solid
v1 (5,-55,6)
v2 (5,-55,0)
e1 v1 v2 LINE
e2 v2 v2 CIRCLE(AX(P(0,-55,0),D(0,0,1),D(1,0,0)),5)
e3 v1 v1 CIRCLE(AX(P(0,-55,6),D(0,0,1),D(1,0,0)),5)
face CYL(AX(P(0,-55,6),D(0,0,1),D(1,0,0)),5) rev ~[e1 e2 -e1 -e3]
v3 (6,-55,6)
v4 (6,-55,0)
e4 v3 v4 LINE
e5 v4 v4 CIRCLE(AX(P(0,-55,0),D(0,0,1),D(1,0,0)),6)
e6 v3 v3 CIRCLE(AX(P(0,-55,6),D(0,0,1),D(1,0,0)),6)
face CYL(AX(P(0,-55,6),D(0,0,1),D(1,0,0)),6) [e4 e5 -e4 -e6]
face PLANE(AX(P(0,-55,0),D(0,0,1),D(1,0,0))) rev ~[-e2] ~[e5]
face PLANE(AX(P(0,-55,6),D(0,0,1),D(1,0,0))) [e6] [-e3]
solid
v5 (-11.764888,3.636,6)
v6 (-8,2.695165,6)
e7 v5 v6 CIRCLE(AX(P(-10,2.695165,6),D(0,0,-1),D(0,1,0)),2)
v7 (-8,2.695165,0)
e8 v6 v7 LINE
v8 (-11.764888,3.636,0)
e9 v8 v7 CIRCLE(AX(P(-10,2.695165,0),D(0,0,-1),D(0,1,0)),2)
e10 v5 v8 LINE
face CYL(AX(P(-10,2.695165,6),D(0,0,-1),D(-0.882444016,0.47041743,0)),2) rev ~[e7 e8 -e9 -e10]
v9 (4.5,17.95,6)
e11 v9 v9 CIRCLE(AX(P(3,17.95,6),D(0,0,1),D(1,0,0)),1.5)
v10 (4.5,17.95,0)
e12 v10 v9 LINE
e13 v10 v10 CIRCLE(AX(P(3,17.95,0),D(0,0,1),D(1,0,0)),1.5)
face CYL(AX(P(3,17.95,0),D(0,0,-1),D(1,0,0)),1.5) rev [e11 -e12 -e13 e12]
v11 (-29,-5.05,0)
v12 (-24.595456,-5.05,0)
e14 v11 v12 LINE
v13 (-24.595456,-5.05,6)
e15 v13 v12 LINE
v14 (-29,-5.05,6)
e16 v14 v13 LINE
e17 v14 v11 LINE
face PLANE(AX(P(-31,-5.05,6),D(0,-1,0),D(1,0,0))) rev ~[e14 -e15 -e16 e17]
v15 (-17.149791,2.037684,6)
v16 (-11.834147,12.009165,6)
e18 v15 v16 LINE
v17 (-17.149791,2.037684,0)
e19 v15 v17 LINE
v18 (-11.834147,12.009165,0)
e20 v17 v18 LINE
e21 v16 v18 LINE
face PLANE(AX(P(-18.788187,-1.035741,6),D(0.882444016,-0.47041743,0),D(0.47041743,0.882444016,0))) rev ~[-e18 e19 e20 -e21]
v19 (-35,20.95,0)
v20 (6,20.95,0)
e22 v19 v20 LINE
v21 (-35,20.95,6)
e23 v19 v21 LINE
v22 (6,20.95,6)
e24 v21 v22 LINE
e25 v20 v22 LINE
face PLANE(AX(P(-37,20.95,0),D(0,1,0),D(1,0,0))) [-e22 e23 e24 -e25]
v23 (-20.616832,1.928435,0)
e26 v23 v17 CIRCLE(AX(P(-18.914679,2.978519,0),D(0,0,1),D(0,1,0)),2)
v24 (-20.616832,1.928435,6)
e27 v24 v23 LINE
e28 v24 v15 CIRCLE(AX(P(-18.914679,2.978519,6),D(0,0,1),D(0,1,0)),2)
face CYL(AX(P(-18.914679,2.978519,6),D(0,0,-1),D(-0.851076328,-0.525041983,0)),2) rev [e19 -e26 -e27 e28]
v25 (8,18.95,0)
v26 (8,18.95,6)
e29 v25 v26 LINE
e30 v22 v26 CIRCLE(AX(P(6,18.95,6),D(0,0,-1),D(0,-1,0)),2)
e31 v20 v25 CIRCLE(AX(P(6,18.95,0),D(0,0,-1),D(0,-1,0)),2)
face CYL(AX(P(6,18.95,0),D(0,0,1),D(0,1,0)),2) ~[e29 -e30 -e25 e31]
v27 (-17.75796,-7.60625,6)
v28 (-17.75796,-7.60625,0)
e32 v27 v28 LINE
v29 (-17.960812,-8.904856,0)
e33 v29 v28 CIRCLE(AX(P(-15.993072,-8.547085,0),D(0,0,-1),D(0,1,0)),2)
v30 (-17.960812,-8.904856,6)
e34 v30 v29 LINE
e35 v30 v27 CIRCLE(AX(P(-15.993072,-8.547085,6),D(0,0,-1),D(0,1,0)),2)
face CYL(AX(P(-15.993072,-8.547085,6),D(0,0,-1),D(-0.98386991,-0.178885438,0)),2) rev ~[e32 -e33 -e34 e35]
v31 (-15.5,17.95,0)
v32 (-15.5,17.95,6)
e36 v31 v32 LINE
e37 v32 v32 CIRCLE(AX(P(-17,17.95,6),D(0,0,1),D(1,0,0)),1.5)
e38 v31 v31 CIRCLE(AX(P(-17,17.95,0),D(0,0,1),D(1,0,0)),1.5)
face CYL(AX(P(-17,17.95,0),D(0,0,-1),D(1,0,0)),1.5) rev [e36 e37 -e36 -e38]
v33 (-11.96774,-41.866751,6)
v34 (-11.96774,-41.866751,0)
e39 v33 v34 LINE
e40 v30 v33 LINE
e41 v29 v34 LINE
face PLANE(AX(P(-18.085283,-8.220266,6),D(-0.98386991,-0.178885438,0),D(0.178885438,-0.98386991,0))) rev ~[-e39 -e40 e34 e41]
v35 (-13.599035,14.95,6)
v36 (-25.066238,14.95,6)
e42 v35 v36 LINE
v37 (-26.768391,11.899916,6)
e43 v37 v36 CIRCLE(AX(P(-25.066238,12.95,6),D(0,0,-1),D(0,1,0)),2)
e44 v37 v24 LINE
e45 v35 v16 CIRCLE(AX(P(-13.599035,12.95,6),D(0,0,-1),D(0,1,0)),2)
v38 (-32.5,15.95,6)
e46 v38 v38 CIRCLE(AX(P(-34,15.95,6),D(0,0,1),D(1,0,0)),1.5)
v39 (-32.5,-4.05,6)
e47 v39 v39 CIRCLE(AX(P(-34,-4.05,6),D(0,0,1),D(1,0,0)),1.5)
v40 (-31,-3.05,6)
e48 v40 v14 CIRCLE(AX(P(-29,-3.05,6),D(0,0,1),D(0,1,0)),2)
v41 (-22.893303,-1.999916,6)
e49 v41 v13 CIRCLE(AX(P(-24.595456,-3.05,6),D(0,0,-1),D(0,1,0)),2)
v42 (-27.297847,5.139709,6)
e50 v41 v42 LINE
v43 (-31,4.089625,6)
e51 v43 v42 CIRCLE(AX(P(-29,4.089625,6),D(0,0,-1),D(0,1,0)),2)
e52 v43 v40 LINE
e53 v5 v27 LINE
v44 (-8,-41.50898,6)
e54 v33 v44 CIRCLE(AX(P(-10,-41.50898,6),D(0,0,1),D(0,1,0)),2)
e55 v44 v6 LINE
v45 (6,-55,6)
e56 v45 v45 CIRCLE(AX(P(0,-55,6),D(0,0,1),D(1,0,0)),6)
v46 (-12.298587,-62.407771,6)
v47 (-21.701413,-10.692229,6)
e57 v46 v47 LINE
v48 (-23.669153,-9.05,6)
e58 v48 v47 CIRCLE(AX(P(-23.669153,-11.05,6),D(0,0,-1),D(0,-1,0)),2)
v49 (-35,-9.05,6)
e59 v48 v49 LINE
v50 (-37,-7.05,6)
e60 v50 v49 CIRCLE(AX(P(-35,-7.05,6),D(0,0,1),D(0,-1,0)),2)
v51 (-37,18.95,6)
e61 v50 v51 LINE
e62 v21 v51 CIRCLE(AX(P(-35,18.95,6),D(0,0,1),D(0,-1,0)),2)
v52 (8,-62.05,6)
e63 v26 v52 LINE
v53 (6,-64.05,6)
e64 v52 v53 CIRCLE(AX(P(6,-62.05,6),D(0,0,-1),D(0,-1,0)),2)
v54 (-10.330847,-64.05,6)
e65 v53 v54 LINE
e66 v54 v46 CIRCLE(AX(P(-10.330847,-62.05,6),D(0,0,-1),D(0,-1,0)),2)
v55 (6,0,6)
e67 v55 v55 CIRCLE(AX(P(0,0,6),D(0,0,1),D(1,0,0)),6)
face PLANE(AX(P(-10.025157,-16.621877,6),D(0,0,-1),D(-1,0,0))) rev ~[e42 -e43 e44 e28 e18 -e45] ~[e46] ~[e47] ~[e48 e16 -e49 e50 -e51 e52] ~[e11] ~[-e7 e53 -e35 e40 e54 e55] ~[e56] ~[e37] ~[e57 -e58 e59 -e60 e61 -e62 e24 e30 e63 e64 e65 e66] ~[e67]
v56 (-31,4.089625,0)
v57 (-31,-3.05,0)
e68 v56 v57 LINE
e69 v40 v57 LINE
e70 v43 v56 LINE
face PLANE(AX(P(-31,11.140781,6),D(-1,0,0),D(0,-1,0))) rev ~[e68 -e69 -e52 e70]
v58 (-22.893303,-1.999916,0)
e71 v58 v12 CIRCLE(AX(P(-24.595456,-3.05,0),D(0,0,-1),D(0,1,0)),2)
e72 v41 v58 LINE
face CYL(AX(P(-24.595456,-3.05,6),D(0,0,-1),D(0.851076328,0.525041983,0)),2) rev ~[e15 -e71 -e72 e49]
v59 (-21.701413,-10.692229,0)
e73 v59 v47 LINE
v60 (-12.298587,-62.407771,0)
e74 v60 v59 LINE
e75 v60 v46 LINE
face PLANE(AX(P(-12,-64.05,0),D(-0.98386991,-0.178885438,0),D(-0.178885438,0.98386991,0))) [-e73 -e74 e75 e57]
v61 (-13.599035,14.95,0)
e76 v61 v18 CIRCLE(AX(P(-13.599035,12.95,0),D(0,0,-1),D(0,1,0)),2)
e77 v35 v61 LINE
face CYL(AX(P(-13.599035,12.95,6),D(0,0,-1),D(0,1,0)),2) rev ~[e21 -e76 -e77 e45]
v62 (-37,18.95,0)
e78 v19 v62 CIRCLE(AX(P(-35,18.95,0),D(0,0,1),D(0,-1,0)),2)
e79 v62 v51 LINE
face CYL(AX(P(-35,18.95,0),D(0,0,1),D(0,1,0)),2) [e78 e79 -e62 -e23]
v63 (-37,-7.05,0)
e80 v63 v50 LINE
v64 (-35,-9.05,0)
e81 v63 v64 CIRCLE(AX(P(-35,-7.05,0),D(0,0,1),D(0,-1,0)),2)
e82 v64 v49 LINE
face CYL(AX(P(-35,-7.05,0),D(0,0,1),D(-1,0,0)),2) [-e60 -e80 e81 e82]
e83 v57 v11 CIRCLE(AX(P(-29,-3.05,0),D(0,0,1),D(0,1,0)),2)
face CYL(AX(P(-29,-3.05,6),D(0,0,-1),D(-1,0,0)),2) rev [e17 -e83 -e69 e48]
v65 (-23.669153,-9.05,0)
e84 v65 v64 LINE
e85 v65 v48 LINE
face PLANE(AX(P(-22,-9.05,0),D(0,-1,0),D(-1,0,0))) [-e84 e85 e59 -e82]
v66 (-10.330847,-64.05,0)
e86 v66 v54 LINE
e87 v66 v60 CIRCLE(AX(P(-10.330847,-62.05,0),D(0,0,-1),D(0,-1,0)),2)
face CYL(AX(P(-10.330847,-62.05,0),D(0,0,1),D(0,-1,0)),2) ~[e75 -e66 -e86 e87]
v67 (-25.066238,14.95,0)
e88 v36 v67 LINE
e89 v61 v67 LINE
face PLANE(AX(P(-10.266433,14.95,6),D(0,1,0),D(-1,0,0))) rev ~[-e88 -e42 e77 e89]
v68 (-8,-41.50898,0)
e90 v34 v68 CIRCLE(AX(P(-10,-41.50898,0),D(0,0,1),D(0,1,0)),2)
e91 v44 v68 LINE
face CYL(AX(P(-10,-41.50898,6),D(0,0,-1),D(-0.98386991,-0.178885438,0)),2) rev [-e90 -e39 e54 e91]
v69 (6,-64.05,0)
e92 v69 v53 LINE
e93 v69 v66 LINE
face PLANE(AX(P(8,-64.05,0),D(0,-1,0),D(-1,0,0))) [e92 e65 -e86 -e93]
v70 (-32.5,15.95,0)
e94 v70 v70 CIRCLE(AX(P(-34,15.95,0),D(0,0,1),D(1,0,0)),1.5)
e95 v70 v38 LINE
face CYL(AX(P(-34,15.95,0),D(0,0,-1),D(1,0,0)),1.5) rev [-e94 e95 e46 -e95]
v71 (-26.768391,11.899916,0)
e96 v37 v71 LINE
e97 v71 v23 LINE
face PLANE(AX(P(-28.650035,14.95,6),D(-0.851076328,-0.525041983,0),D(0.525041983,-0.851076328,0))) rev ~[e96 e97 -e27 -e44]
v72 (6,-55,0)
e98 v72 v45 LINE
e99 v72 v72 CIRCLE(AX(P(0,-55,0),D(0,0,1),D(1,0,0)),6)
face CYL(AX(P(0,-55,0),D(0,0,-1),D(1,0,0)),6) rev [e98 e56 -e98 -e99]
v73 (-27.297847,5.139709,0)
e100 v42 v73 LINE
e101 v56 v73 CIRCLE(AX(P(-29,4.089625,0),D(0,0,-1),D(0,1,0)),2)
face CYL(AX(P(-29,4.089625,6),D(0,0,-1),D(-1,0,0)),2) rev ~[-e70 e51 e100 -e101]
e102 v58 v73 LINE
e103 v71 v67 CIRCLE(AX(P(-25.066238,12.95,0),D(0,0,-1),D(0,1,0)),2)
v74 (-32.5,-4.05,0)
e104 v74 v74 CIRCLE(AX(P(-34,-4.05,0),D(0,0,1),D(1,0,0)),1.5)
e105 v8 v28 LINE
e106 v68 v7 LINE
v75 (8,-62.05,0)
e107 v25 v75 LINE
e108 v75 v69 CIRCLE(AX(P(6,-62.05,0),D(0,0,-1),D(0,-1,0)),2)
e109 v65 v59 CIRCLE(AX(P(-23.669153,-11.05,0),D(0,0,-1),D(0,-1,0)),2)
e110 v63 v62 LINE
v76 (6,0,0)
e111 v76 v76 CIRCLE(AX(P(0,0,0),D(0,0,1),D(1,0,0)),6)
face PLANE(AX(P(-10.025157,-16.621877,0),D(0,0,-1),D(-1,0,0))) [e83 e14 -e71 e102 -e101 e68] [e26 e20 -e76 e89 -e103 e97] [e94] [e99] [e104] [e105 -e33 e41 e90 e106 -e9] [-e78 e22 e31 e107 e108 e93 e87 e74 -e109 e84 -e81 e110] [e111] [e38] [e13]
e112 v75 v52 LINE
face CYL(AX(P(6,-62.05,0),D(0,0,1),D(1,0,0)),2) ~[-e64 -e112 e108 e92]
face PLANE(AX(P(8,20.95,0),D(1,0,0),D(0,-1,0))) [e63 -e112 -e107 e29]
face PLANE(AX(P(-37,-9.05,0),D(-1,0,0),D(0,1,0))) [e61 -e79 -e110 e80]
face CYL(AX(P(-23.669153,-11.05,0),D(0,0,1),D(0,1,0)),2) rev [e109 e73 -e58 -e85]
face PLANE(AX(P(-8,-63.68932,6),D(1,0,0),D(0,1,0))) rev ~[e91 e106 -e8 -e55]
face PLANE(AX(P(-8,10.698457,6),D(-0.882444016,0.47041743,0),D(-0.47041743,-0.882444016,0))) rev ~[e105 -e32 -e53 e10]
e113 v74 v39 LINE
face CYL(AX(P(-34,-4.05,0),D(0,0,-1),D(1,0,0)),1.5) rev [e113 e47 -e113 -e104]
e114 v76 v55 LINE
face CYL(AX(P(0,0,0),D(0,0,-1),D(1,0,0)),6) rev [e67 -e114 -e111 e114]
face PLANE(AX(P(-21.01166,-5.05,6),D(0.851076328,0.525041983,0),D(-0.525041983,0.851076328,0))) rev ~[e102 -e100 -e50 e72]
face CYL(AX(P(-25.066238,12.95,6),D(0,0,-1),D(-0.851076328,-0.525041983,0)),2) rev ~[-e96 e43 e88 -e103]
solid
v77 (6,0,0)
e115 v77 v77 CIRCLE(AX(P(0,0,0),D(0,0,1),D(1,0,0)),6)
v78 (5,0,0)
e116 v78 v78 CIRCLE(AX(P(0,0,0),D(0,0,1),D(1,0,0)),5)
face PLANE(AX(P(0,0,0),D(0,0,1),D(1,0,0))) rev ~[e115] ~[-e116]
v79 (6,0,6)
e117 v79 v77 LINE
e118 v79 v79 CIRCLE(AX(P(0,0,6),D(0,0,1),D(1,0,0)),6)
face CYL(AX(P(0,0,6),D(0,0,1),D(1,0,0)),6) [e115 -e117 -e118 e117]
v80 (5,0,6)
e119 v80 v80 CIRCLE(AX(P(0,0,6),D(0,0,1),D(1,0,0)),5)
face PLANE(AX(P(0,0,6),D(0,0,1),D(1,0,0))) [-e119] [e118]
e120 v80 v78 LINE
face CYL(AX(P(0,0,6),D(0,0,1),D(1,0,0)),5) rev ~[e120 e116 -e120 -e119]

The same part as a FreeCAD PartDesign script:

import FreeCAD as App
import Part
import Sketcher


def edges_at(feature, points):
    """Names of the edges that pass closest to the given points."""
    edges = feature.Shape.Edges
    near = lambda p: min(range(len(edges)), key=lambda i: edges[i].distToShape(Part.Vertex(*p))[0])
    return sorted({f"Edge{near(p) + 1}" for p in points})


def add_polygon(sketch, points):
    """Adds a closed chain of lines whose ends are joined by coincident constraints."""
    first, n = sketch.GeometryCount, len(points)
    for a, b in zip(points, points[1:] + points[:1]):
        sketch.addGeometry(Part.LineSegment(App.Vector(*a, 0), App.Vector(*b, 0)), False)
    for i in range(n):
        sketch.addConstraint(Sketcher.Constraint("Coincident", first + i, 2, first + (i + 1) % n, 1))

doc = App.newDocument("Part")
body = doc.addObject("PartDesign::Body", "Body")

# Sketch on XY plane
sketch1 = body.newObject("Sketcher::SketchObject", "Sketch")
sketch1.AttachmentSupport = (doc.getObject("XY_Plane"), [""])
sketch1.MapMode = "FlatFace"
add_polygon(sketch1, [(8, 20.9), (-37, 20.9), (-37, -9.1), (-22, -9.1), (-12, -64), (8, -64)])  # lines 0-5
sketch1.addGeometry(Part.Circle(App.Vector(0, -55, 0), App.Vector(0, 0, 1), 6), False)  # 6
sketch1.addGeometry(Part.Circle(App.Vector(0, 0, 0), App.Vector(0, 0, 1), 6), False)  # 7
sketch1.addGeometry(Part.Circle(App.Vector(3, 17.9, 0), App.Vector(0, 0, 1), 1.5), False)  # 8
sketch1.addGeometry(Part.Circle(App.Vector(-34, -4, 0), App.Vector(0, 0, 1), 1.5), False)  # 9
sketch1.addGeometry(Part.Circle(App.Vector(-17, 17.9, 0), App.Vector(0, 0, 1), 1.5), False)  # 10
sketch1.addGeometry(Part.Circle(App.Vector(-34, 15.9, 0), App.Vector(0, 0, 1), 1.5), False)  # 11
sketch1.addConstraint([
    Sketcher.Constraint("Horizontal", 0),
    Sketcher.Constraint("Vertical", 1),
    Sketcher.Constraint("Horizontal", 2),
    Sketcher.Constraint("Horizontal", 4),
    Sketcher.Constraint("Vertical", 5),
    Sketcher.Constraint("Coincident", 7, 3, -1, 1),
    Sketcher.Constraint("Equal", 6, 7),
    Sketcher.Constraint("Equal", 8, 9),
    Sketcher.Constraint("Equal", 9, 10),
    Sketcher.Constraint("Equal", 10, 11),
    Sketcher.Constraint("PointOnObject", 6, 3, -2),
    Sketcher.Constraint("Horizontal", 8, 3, 10, 3),
    Sketcher.Constraint("Vertical", 9, 3, 11, 3),
    Sketcher.Constraint("Diameter", 6, 12.0),
    Sketcher.Constraint("Diameter", 8, 3.0),
    Sketcher.Constraint("DistanceX", 0, 2, 0, 1, 45.0),
    Sketcher.Constraint("DistanceX", 2, 1, 2, 2, 15.0),
    Sketcher.Constraint("DistanceX", 4, 1, 4, 2, 20.0),
    Sketcher.Constraint("DistanceY", 1, 2, 1, 1, 30.0),
    Sketcher.Constraint("DistanceY", 5, 1, 5, 2, 85.0),
    Sketcher.Constraint("DistanceY", 6, 3, -1, 1, 55.0),
    Sketcher.Constraint("DistanceX", -1, 1, 8, 3, 3.0),
    Sketcher.Constraint("DistanceX", 9, 3, -1, 1, 34.0),
    Sketcher.Constraint("DistanceX", 10, 3, -1, 1, 17.0),
    Sketcher.Constraint("DistanceX", 0, 2, -1, 1, 37.0),
    Sketcher.Constraint("DistanceY", 9, 3, 8, 3, 22.0),
    Sketcher.Constraint("DistanceY", 11, 3, 10, 3, 2.0),
    Sketcher.Constraint("DistanceY", 11, 3, 0, 2, 5.0),
    Sketcher.Constraint("DistanceY", -1, 1, 8, 3, 17.95),
])
pad1 = body.newObject("PartDesign::Pad", "Pad")
pad1.Profile = sketch1
pad1.Length = 6

# Sketch on XY plane
sketch2 = body.newObject("Sketcher::SketchObject", "Sketch001")
sketch2.AttachmentSupport = (doc.getObject("XY_Plane"), [""])
sketch2.MapMode = "FlatFace"
sketch2.AttachmentOffset = App.Placement(App.Vector(0, 0, 6), App.Rotation())
add_polygon(sketch2, [(-8, -64), (-8, 11), (-18, -8)])  # lines 0-2
add_polygon(sketch2, [(-19, -1), (-10, 15), (-29, 15)])  # lines 3-5
add_polygon(sketch2, [(-31, -5), (-21, -5), (-31, 11)])  # lines 6-8
sketch2.addConstraint([
    Sketcher.Constraint("Vertical", 0),
    Sketcher.Constraint("Horizontal", 4),
    Sketcher.Constraint("Horizontal", 6),
    Sketcher.Constraint("Vertical", 8),
    Sketcher.Constraint("Parallel", 1, 3),
    Sketcher.Constraint("Parallel", 5, 7),
    Sketcher.Constraint("DistanceX", 0, 2, -1, 1, 8.0),
    Sketcher.Constraint("DistanceX", 7, 2, -1, 1, 31.0),
    Sketcher.Constraint("DistanceY", 6, 2, 4, 2, 20.0),
    Sketcher.Constraint("DistanceY", -1, 1, 3, 2, 14.95),
    Sketcher.Constraint("DistanceX", 4, 2, 4, 1, 18.383602),
    Sketcher.Constraint("DistanceX", 6, 1, 6, 2, 9.98834),
    Sketcher.Constraint("DistanceY", 8, 2, 8, 1, 16.190781),
    Sketcher.Constraint("Distance", 5, 18.782969),
    Sketcher.Constraint("DistanceY", 0, 1, 0, 2, 74.387777),
    Sketcher.Constraint("DistanceY", 2, 2, -1, 1, 63.68932),
    Sketcher.Constraint("DistanceX", 1, 2, 3, 2, 7.81885),
    Sketcher.Constraint("Distance", 1, 21.439007),
])
pocket1 = body.newObject("PartDesign::Pocket", "Pocket")
pocket1.Profile = sketch2
pocket1.Length = 6
doc.recompute()

fillet = body.newObject("PartDesign::Fillet", "Fillet")
fillet.Base = (pocket1, edges_at(pocket1, [
    (8, -64.05, 3),
    (-12, -64.05, 3),
    (-22, -9.05, 3),
    (-37, -9.05, 3),
    (-37, 20.95, 3),
    (8, 20.95, 3),
    (-10.266, 14.95, 3),
    (-28.65, 14.95, 3),
    (-18.788, -1.036, 3),
    (-31, 11.141, 3),
    (-21.012, -5.05, 3),
    (-31, -5.05, 3),
    (-18.085, -8.22, 3),
    (-8, -63.689, 3),
    (-8, 10.698, 3),
]))
fillet.Radius = 2
body2 = doc.addObject("PartDesign::Body", "Body001")

# Sketch on XY plane
sketch3 = body2.newObject("Sketcher::SketchObject", "Sketch002")
sketch3.AttachmentSupport = (doc.getObject("XY_Plane001"), [""])
sketch3.MapMode = "FlatFace"
sketch3.AttachmentOffset = App.Placement(App.Vector(0, 0, 6), App.Rotation())
sketch3.addGeometry([
    Part.Circle(App.Vector(0, -55, 0), App.Vector(0, 0, 1), 6),
    Part.Circle(App.Vector(0, -55, 0), App.Vector(0, 0, 1), 5),
], False)
sketch3.addConstraint([
    Sketcher.Constraint("Coincident", 1, 3, 0, 3),
    Sketcher.Constraint("PointOnObject", 0, 3, -2),
    Sketcher.Constraint("Diameter", 0, 12.0),
    Sketcher.Constraint("Diameter", 1, 10.0),
    Sketcher.Constraint("DistanceY", 0, 3, -1, 1, 55.0),
])
pad2 = body2.newObject("PartDesign::Pad", "Pad001")
pad2.Profile = sketch3
pad2.Length = 6
pad2.Reversed = True
body3 = doc.addObject("PartDesign::Body", "Body002")

# Sketch on XY plane
sketch4 = body3.newObject("Sketcher::SketchObject", "Sketch003")
sketch4.AttachmentSupport = (doc.getObject("XY_Plane002"), [""])
sketch4.MapMode = "FlatFace"
sketch4.AttachmentOffset = App.Placement(App.Vector(0, 0, 6), App.Rotation())
sketch4.addGeometry([
    Part.Circle(App.Vector(0, 0, 0), App.Vector(0, 0, 1), 6),
    Part.Circle(App.Vector(0, 0, 0), App.Vector(0, 0, 1), 5),
], False)
sketch4.addConstraint([
    Sketcher.Constraint("Coincident", 0, 3, -1, 1),
    Sketcher.Constraint("Coincident", 1, 3, -1, 1),
    Sketcher.Constraint("Diameter", 0, 12.0),
    Sketcher.Constraint("Diameter", 1, 10.0),
])
pad3 = body3.newObject("PartDesign::Pad", "Pad002")
pad3.Profile = sketch4
pad3.Length = 6
pad3.Reversed = True
body4 = doc.addObject("PartDesign::Body", "Body003")

# Sketch on XY plane
sketch5 = body4.newObject("Sketcher::SketchObject", "Sketch004")
sketch5.AttachmentSupport = (doc.getObject("XY_Plane003"), [""])
sketch5.MapMode = "FlatFace"
sketch5.AttachmentOffset = App.Placement(App.Vector(0, 0, 6), App.Rotation())
sketch5.addGeometry([
    Part.Circle(App.Vector(0, 0, 0), App.Vector(0, 0, 1), 8),
    Part.Circle(App.Vector(0, 0, 0), App.Vector(0, 0, 1), 5),
], False)
sketch5.addConstraint([
    Sketcher.Constraint("Coincident", 0, 3, -1, 1),
    Sketcher.Constraint("Coincident", 1, 3, -1, 1),
    Sketcher.Constraint("Diameter", 0, 16.0),
    Sketcher.Constraint("Diameter", 1, 10.0),
])
pad4 = body4.newObject("PartDesign::Pad", "Pad003")
pad4.Profile = sketch5
pad4.Length = 0.5
body5 = doc.addObject("PartDesign::Body", "Body004")

# Sketch on XY plane
sketch6 = body5.newObject("Sketcher::SketchObject", "Sketch005")
sketch6.AttachmentSupport = (doc.getObject("XY_Plane004"), [""])
sketch6.MapMode = "FlatFace"
sketch6.AttachmentOffset = App.Placement(App.Vector(0, 0, 6), App.Rotation())
sketch6.addGeometry([
    Part.Circle(App.Vector(0, -55, 0), App.Vector(0, 0, 1), 8),
    Part.Circle(App.Vector(0, -55, 0), App.Vector(0, 0, 1), 5),
], False)
sketch6.addConstraint([
    Sketcher.Constraint("Coincident", 1, 3, 0, 3),
    Sketcher.Constraint("PointOnObject", 0, 3, -2),
    Sketcher.Constraint("Diameter", 0, 16.0),
    Sketcher.Constraint("Diameter", 1, 10.0),
    Sketcher.Constraint("DistanceY", 0, 3, -1, 1, 55.0),
])
pad5 = body5.newObject("PartDesign::Pad", "Pad004")
pad5.Profile = sketch6
pad5.Length = 0.5
body6 = doc.addObject("PartDesign::Body", "Body005")

# Sketch on XY plane
sketch7 = body6.newObject("Sketcher::SketchObject", "Sketch006")
sketch7.AttachmentSupport = (doc.getObject("XY_Plane005"), [""])
sketch7.MapMode = "FlatFace"
sketch7.addGeometry([
    Part.Circle(App.Vector(0, -55, 0), App.Vector(0, 0, 1), 8),
    Part.Circle(App.Vector(0, -55, 0), App.Vector(0, 0, 1), 5),
], False)
sketch7.addConstraint([
    Sketcher.Constraint("Coincident", 1, 3, 0, 3),
    Sketcher.Constraint("PointOnObject", 0, 3, -2),
    Sketcher.Constraint("Diameter", 0, 16.0),
    Sketcher.Constraint("Diameter", 1, 10.0),
    Sketcher.Constraint("DistanceY", 0, 3, -1, 1, 55.0),
])
pad6 = body6.newObject("PartDesign::Pad", "Pad005")
pad6.Profile = sketch7
pad6.Length = 0.5
pad6.Reversed = True
body7 = doc.addObject("PartDesign::Body", "Body006")

# Sketch on XY plane
sketch8 = body7.newObject("Sketcher::SketchObject", "Sketch007")
sketch8.AttachmentSupport = (doc.getObject("XY_Plane006"), [""])
sketch8.MapMode = "FlatFace"
sketch8.addGeometry([
    Part.Circle(App.Vector(0, 0, 0), App.Vector(0, 0, 1), 8),
    Part.Circle(App.Vector(0, 0, 0), App.Vector(0, 0, 1), 5),
], False)
sketch8.addConstraint([
    Sketcher.Constraint("Coincident", 0, 3, -1, 1),
    Sketcher.Constraint("Coincident", 1, 3, -1, 1),
    Sketcher.Constraint("Diameter", 0, 16.0),
    Sketcher.Constraint("Diameter", 1, 10.0),
])
pad7 = body7.newObject("PartDesign::Pad", "Pad006")
pad7.Profile = sketch8
pad7.Length = 0.5
pad7.Reversed = True
body4.Visibility = False
body5.Visibility = False
body6.Visibility = False
body7.Visibility = False

doc.recompute()
